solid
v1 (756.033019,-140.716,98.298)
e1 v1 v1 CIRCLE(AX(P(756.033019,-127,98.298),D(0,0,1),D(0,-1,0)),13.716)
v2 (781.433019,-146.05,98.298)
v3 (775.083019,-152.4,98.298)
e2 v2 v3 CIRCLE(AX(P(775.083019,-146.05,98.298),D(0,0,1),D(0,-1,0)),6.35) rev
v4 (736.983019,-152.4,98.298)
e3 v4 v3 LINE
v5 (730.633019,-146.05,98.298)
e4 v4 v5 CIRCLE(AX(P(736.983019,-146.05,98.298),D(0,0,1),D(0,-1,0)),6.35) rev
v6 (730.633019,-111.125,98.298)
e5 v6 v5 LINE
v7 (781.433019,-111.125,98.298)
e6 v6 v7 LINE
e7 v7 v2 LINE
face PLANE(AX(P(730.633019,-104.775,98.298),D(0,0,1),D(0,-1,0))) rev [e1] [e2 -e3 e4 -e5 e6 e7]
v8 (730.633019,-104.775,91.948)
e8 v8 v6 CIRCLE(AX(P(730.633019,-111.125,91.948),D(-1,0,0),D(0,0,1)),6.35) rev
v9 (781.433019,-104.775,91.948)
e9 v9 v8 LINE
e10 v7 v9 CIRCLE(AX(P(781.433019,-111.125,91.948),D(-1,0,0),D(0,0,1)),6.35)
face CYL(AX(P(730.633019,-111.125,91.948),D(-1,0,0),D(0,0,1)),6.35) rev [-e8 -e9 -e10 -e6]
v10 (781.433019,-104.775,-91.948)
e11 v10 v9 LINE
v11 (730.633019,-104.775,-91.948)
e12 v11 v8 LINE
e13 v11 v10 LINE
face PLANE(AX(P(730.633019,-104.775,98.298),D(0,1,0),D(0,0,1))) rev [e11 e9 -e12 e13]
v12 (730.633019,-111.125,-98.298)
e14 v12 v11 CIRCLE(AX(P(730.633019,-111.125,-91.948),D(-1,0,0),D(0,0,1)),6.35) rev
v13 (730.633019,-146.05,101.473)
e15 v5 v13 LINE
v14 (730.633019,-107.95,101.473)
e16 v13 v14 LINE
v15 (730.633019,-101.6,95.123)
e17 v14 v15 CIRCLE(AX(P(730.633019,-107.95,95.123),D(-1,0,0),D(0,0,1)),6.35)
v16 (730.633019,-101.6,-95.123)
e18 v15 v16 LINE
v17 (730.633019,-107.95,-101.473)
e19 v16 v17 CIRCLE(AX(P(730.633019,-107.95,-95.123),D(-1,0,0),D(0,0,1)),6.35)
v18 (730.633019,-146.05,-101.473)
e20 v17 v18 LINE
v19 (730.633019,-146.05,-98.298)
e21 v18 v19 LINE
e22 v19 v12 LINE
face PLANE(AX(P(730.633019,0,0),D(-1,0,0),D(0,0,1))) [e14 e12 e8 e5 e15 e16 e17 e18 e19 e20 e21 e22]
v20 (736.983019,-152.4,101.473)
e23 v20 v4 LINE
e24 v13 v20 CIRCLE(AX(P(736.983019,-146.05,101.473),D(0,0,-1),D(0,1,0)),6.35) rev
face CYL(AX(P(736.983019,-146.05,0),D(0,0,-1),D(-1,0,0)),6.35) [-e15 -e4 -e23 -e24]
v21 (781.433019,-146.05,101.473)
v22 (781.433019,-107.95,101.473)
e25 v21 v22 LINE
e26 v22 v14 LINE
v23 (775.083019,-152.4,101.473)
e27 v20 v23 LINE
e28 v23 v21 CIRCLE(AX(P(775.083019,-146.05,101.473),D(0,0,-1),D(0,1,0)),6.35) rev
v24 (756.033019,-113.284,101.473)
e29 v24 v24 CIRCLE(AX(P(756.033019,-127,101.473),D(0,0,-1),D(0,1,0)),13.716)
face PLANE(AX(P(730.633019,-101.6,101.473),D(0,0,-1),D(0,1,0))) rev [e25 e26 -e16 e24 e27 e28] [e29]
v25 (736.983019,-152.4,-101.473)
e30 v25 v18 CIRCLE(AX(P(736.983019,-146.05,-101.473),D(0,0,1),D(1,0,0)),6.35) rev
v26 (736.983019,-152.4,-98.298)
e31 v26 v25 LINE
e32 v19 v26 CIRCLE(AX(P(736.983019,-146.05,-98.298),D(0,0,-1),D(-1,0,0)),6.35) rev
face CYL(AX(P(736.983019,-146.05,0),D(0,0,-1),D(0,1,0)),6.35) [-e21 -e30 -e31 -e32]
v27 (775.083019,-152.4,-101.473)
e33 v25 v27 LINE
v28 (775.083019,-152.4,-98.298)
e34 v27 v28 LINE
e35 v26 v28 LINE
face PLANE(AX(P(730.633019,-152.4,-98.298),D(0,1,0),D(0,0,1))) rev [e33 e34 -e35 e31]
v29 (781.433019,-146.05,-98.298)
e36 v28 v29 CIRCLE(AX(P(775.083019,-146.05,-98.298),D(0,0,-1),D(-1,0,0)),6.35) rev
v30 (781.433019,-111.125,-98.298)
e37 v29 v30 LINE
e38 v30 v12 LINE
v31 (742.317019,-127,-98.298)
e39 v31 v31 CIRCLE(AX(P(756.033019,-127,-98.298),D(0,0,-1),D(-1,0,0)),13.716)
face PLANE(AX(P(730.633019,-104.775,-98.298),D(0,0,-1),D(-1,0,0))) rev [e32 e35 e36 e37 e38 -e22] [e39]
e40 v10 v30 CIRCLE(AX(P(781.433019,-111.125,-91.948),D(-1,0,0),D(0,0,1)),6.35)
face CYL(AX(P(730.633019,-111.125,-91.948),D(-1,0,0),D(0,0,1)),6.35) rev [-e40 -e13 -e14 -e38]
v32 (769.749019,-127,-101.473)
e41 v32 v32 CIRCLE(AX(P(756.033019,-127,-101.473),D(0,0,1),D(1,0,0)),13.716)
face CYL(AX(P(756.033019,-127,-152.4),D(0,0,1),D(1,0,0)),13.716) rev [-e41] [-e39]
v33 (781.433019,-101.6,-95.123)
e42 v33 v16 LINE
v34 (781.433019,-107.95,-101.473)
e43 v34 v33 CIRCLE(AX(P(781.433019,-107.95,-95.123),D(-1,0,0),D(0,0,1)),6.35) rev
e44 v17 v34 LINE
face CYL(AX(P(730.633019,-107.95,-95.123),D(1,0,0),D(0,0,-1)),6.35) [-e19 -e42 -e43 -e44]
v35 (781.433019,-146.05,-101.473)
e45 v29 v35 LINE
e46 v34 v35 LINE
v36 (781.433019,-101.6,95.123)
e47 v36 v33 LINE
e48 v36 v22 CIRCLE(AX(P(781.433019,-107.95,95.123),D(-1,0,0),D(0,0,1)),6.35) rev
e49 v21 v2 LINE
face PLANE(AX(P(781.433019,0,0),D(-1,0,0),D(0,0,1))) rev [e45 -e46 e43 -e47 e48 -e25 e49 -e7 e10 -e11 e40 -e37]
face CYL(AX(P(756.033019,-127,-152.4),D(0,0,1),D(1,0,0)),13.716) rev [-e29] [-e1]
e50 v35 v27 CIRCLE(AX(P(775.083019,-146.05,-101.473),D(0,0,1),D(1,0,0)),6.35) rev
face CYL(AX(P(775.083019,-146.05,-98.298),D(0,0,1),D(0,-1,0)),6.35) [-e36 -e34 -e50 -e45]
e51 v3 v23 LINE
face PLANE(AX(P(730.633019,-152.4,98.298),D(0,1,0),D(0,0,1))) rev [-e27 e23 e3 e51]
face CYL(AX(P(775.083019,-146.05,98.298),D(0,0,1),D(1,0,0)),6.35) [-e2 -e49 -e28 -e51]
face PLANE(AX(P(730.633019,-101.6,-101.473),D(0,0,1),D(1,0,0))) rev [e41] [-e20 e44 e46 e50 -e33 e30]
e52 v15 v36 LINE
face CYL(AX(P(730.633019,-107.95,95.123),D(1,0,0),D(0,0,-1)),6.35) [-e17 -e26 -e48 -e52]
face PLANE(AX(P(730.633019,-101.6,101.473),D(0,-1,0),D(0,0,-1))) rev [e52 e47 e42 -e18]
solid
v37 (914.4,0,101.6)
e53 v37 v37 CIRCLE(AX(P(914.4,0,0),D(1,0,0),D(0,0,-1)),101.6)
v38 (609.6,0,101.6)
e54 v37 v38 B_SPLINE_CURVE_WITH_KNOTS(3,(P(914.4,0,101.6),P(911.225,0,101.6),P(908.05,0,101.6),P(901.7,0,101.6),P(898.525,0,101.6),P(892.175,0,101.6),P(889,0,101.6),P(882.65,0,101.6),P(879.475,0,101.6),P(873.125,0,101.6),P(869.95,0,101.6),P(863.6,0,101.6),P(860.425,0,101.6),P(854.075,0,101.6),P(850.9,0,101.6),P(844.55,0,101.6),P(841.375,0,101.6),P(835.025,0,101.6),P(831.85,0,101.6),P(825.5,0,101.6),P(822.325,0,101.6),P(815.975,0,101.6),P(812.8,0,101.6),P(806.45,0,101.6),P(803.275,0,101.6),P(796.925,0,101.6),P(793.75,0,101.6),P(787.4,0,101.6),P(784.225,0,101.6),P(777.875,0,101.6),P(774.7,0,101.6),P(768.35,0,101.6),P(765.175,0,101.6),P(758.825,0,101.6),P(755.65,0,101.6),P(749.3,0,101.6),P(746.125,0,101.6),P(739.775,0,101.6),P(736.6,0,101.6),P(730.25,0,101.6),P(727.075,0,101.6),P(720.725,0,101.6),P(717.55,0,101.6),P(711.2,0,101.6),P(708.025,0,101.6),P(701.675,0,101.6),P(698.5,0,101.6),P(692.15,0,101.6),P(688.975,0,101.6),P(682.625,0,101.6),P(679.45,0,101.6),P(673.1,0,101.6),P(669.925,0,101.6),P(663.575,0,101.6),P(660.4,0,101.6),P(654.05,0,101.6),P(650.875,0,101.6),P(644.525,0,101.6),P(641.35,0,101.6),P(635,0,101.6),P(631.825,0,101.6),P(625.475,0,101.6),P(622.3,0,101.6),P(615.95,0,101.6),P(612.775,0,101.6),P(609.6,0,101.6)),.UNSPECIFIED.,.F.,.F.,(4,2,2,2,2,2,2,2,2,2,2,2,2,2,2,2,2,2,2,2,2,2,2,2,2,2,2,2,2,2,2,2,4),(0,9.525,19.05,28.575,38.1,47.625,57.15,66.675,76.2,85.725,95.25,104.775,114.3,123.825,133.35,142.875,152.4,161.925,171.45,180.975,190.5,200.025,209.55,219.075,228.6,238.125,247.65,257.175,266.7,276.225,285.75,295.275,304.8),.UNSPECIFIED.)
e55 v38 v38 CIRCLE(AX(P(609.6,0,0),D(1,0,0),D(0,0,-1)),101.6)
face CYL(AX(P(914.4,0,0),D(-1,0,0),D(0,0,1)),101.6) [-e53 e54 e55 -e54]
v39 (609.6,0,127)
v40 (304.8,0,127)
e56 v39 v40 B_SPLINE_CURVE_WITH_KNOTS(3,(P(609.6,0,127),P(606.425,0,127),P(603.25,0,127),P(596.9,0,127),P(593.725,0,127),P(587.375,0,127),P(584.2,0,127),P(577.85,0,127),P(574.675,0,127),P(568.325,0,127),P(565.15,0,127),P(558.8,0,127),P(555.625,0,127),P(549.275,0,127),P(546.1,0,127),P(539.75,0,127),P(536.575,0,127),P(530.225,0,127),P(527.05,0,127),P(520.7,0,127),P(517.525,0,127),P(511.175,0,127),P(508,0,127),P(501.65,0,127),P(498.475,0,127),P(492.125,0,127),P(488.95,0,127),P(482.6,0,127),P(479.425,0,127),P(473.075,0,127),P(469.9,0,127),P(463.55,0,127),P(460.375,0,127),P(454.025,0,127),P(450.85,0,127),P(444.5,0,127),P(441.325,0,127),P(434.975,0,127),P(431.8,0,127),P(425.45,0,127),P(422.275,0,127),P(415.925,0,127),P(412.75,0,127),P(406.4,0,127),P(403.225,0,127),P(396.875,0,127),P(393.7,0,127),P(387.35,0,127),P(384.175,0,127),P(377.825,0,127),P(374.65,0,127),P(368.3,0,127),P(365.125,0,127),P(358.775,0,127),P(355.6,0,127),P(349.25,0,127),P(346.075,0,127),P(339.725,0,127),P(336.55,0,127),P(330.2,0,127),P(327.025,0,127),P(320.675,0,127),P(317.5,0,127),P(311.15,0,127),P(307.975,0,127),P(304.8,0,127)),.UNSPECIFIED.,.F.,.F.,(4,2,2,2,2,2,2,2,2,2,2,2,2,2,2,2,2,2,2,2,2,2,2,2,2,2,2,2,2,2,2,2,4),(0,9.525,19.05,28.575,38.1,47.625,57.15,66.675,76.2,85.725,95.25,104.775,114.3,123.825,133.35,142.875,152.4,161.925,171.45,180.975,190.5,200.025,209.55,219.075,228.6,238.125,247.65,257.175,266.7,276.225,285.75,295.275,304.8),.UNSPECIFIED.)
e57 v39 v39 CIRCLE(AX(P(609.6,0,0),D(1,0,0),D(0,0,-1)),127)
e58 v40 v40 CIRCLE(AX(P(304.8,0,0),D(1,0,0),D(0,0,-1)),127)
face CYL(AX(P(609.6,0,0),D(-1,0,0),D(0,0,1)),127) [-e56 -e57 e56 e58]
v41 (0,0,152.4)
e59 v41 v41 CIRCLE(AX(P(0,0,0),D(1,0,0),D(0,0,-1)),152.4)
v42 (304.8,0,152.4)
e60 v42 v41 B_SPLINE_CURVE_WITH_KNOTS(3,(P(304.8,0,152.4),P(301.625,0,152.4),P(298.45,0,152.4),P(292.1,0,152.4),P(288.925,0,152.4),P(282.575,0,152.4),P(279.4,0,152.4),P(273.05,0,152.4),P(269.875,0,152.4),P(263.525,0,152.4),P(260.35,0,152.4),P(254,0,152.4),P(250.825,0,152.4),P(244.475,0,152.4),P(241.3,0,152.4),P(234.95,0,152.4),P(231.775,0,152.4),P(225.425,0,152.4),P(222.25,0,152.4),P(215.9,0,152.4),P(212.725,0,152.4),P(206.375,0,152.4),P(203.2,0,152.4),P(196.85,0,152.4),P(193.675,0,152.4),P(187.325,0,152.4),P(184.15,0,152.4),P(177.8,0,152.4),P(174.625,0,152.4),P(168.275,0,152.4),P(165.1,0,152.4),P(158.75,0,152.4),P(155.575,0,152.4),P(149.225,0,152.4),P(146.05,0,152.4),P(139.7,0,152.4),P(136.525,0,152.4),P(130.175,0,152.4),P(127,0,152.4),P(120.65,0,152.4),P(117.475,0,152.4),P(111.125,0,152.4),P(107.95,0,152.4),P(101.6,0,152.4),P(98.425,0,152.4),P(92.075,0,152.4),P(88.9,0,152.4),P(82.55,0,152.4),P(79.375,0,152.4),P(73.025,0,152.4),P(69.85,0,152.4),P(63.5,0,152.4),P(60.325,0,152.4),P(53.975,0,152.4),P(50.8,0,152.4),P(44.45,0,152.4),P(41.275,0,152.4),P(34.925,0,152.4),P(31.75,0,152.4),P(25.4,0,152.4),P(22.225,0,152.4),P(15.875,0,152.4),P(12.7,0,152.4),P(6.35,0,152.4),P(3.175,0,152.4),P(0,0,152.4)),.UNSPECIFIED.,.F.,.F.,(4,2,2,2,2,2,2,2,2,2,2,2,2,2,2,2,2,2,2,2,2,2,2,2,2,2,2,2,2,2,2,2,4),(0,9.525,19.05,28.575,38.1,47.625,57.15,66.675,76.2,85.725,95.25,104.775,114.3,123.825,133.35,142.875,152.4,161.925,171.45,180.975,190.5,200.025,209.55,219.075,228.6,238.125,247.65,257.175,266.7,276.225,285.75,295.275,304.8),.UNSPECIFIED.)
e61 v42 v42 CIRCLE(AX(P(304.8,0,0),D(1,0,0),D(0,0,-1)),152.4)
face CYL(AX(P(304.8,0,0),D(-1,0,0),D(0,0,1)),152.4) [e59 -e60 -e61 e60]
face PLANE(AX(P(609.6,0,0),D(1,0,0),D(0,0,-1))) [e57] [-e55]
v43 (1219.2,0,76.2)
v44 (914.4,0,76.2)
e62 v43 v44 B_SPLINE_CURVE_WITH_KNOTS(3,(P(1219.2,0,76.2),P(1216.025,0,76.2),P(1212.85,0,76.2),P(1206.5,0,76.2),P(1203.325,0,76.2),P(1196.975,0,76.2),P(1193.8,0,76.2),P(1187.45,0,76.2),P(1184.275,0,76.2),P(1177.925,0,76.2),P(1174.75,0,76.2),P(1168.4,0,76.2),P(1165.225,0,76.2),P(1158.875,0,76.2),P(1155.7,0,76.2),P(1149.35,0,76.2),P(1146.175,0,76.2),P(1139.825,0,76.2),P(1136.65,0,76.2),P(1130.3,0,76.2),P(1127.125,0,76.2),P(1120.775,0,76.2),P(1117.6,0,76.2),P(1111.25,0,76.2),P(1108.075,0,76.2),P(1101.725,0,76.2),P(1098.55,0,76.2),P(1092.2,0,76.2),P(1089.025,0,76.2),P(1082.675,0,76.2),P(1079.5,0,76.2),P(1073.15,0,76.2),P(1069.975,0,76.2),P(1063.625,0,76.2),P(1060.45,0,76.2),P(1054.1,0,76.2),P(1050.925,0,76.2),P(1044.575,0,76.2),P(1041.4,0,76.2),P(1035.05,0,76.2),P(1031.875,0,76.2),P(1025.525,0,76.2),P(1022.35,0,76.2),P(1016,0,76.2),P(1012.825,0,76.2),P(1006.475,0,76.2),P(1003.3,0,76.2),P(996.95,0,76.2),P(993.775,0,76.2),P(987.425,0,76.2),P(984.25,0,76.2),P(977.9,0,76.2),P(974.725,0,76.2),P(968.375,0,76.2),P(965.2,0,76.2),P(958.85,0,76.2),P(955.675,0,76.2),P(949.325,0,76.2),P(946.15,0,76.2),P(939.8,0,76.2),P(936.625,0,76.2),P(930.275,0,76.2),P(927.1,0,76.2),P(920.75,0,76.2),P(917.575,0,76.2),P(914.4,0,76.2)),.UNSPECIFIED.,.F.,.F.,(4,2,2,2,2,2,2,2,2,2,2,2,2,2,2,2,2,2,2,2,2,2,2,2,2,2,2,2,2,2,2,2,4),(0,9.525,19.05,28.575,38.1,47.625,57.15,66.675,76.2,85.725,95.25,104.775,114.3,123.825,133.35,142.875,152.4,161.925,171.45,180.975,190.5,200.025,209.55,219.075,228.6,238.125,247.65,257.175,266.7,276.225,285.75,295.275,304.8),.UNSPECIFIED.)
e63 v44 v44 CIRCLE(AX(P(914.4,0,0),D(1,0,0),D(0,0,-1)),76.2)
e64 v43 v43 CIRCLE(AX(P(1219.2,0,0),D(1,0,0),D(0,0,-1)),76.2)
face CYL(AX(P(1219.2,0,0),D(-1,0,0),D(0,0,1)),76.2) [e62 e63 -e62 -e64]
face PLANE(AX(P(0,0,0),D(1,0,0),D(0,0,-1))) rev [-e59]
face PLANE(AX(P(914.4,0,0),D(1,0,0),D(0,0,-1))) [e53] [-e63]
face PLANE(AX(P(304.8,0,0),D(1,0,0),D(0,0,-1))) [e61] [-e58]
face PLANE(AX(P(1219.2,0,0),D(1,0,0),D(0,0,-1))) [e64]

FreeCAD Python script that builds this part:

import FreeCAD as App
import Part
import Sketcher

V = App.Vector
Q = App.Units.Quantity


def edges_at(feature, points):
    """Names of the edges that pass closest to the given points."""
    edges = feature.Shape.Edges
    near = lambda p: min(range(len(edges)), key=lambda i: edges[i].distToShape(Part.Vertex(*p))[0])
    return sorted({f"Edge{near(p) + 1}" for p in points})

doc = App.newDocument("Part")
body = doc.addObject("PartDesign::Body", "Body")

# Sketch on YZ plane
sketch1 = body.newObject("Sketcher::SketchObject", "Sketch")
sketch1.AttachmentSupport = (doc.getObject("YZ_Plane"), [""])
sketch1.MapMode = "FlatFace"
sketch1.addGeometry(Part.Circle(V(0, 0, 0), V(0, 0, 1), 152), False)
sketch1.addConstraint([
    Sketcher.Constraint("Coincident", 0, 3, -1, 1),
    Sketcher.Constraint("Diameter", 0, Q("12 in")),
])
pad1 = body.newObject("PartDesign::Pad", "Pad")
pad1.Profile = sketch1
pad1.Length = Q("12 in")

# Sketch on YZ plane
sketch2 = body.newObject("Sketcher::SketchObject", "Sketch001")
sketch2.AttachmentSupport = (doc.getObject("YZ_Plane"), [""])
sketch2.MapMode = "FlatFace"
sketch2.AttachmentOffset = App.Placement(V(0, 0, 12 * 25.4), App.Rotation())
sketch2.addGeometry(Part.Circle(V(0, 0, 0), V(0, 0, 1), 127), False)
sketch2.addConstraint([
    Sketcher.Constraint("Coincident", 0, 3, -1, 1),
    Sketcher.Constraint("Diameter", 0, Q("10 in")),
])
pad2 = body.newObject("PartDesign::Pad", "Pad001")
pad2.Profile = sketch2
pad2.Length = Q("12 in")

# Sketch on YZ plane
sketch3 = body.newObject("Sketcher::SketchObject", "Sketch002")
sketch3.AttachmentSupport = (doc.getObject("YZ_Plane"), [""])
sketch3.MapMode = "FlatFace"
sketch3.AttachmentOffset = App.Placement(V(0, 0, 24 * 25.4), App.Rotation())
sketch3.addGeometry(Part.Circle(V(0, 0, 0), V(0, 0, 1), 102), False)
sketch3.addConstraint([
    Sketcher.Constraint("Coincident", 0, 3, -1, 1),
    Sketcher.Constraint("Diameter", 0, Q("8 in")),
])
pad3 = body.newObject("PartDesign::Pad", "Pad002")
pad3.Profile = sketch3
pad3.Length = Q("12 in")

# Sketch on YZ plane
sketch4 = body.newObject("Sketcher::SketchObject", "Sketch003")
sketch4.AttachmentSupport = (doc.getObject("YZ_Plane"), [""])
sketch4.MapMode = "FlatFace"
sketch4.AttachmentOffset = App.Placement(V(0, 0, 36 * 25.4), App.Rotation())
sketch4.addGeometry(Part.Circle(V(0, 0, 0), V(0, 0, 1), 76), False)
sketch4.addConstraint([
    Sketcher.Constraint("Coincident", 0, 3, -1, 1),
    Sketcher.Constraint("Diameter", 0, Q("6 in")),
])
pad4 = body.newObject("PartDesign::Pad", "Pad003")
pad4.Profile = sketch4
pad4.Length = Q("12 in")
body2 = doc.addObject("PartDesign::Body", "Body001")

# Sketch on YZ plane
sketch5 = body2.newObject("Sketcher::SketchObject", "Sketch004")
sketch5.AttachmentSupport = (doc.getObject("YZ_Plane001"), [""])
sketch5.MapMode = "FlatFace"
sketch5.AttachmentOffset = App.Placement(V(0, 0, 756.033019), App.Rotation())
sketch5.addGeometry([
    Part.LineSegment(V(-101.6, 101.5, 0), V(-101.6, -101.5, 0)),  # 0
    Part.LineSegment(V(-101.6, -101.5, 0), V(-152.4, -101.5, 0)),  # 1
    Part.LineSegment(V(-152.4, -101.5, 0), V(-152.4, -98.3, 0)),  # 2
    Part.LineSegment(V(-152.4, -98.3, 0), V(-104.8, -98.3, 0)),  # 3
    Part.LineSegment(V(-104.8, -98.3, 0), V(-104.8, 98.3, 0)),  # 4
    Part.LineSegment(V(-104.8, 98.3, 0), V(-152.4, 98.3, 0)),  # 5
    Part.LineSegment(V(-152.4, 98.3, 0), V(-152.4, 101.5, 0)),  # 6
    Part.LineSegment(V(-152.4, 101.5, 0), V(-101.6, 101.5, 0)),  # 7
], False)
sketch5.addConstraint([
    Sketcher.Constraint("Coincident", 0, 2, 1, 1),
    Sketcher.Constraint("Coincident", 1, 2, 2, 1),
    Sketcher.Constraint("Coincident", 2, 2, 3, 1),
    Sketcher.Constraint("Coincident", 3, 2, 4, 1),
    Sketcher.Constraint("Coincident", 4, 2, 5, 1),
    Sketcher.Constraint("Coincident", 5, 2, 6, 1),
    Sketcher.Constraint("Coincident", 6, 2, 7, 1),
    Sketcher.Constraint("Coincident", 7, 2, 0, 1),
    Sketcher.Constraint("Vertical", 0),
    Sketcher.Constraint("Horizontal", 1),
    Sketcher.Constraint("Vertical", 2),
    Sketcher.Constraint("Horizontal", 3),
    Sketcher.Constraint("Vertical", 4),
    Sketcher.Constraint("Horizontal", 5),
    Sketcher.Constraint("Vertical", 6),
    Sketcher.Constraint("Horizontal", 7),
    Sketcher.Constraint("Symmetric", 2, 2, 5, 2, -1),
    Sketcher.Constraint("Equal", 2, 6),
    Sketcher.Constraint("DistanceX", 1, 2, 1, 1, Q("2 in")),
    Sketcher.Constraint("DistanceX", 0, 2, -1, 1, Q("4 in")),
    Sketcher.Constraint("DistanceY", 0, 2, 0, 1, Q("7.99 in")),
    Sketcher.Constraint("DistanceY", 4, 1, 4, 2, Q("7.74 in")),
    Sketcher.Constraint("DistanceX", 3, 1, 3, 2, Q("1.875 in")),
])
pad5 = body2.newObject("PartDesign::Pad", "Pad004")
pad5.Profile = sketch5
pad5.Length = Q("2 in")
pad5.Midplane = True
doc.recompute()

fillet = body2.newObject("PartDesign::Fillet", "Fillet")
fillet.Base = (pad5, edges_at(pad5, [
    (781.433, -152.4, 99.885),
    (756.033, -104.775, 98.298),
    (756.033, -104.775, -98.298),
    (756.033, -101.6, -101.473),
    (756.033, -101.6, 101.473),
    (730.633, -152.4, -99.885),
    (730.633, -152.4, 99.885),
    (781.433, -152.4, -99.885),
]))
fillet.Radius = Q("0.25 in")

# Sketch on XY plane
sketch6 = body2.newObject("Sketcher::SketchObject", "Sketch005")
sketch6.AttachmentSupport = (doc.getObject("XY_Plane001"), [""])
sketch6.MapMode = "FlatFace"
sketch6.AttachmentOffset = App.Placement(V(0, 0, 3.995 * 25.4), App.Rotation())
sketch6.addGeometry(Part.Circle(V(756, -127, 0), V(0, 0, 1), 14), False)
sketch6.addConstraint([
    Sketcher.Constraint("Diameter", 0, Q("1.08 in")),
    Sketcher.Constraint("DistanceY", 0, 3, -1, 1, Q("5 in")),
    Sketcher.Constraint("DistanceX", -1, 1, 0, 3, 756.033019),
])
pocket1 = body2.newObject("PartDesign::Pocket", "Pocket")
pocket1.Profile = sketch6
pocket1.Type = "ThroughAll"
pocket1.Midplane = True

doc.recompute()
